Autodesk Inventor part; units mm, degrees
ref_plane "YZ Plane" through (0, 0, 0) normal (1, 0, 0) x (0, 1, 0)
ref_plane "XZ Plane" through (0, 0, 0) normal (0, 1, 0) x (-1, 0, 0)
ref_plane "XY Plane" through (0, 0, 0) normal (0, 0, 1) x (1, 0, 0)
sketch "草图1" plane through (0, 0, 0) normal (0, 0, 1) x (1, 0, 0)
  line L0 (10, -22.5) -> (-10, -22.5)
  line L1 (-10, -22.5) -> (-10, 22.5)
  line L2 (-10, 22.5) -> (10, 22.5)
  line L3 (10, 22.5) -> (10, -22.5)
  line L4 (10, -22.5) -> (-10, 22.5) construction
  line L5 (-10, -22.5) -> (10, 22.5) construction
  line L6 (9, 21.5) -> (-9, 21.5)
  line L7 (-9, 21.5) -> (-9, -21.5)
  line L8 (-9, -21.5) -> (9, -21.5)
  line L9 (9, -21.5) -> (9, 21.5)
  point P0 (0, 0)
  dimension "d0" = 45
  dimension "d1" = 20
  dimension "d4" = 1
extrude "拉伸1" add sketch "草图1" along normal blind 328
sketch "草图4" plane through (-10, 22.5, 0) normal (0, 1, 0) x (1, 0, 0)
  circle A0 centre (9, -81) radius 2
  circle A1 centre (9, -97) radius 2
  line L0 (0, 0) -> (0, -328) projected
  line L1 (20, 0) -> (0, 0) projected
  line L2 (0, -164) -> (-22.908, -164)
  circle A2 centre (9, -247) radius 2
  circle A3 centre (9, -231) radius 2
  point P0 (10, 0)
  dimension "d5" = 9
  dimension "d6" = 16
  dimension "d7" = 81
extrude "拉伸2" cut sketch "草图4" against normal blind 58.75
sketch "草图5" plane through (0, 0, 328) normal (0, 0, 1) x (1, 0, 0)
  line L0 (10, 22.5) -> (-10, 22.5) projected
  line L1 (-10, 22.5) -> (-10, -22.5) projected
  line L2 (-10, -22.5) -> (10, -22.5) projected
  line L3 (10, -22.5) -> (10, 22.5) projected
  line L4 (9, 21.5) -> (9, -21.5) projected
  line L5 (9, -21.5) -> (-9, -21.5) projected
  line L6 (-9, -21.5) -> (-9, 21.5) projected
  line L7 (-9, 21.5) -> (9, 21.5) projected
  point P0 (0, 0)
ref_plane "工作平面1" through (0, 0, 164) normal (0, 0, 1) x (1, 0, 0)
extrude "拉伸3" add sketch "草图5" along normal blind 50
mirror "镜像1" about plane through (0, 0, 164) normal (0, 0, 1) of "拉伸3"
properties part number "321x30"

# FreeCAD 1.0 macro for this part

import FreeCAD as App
import Part
import Sketcher
from FreeCAD import Vector
Q = App.Units.Quantity

doc = App.newDocument("Part")
body = doc.addObject("PartDesign::Body", "Body")

sketch1 = body.newObject("Sketcher::SketchObject", "Sketch")
sketch1.AttachmentSupport = (doc.getObject("XY_Plane"), [""])
sketch1.MapMode = "FlatFace"
sketch1.addGeometry([
    Part.LineSegment(Vector(-10, -22, 0), Vector(10, -22, 0)),
    Part.LineSegment(Vector(10, -22, 0), Vector(10, 22, 0)),
    Part.LineSegment(Vector(10, 22, 0), Vector(-10, 22, 0)),
    Part.LineSegment(Vector(-10, 22, 0), Vector(-10, -22, 0)),
    Part.LineSegment(Vector(-9, 22, 0), Vector(9, 22, 0)),
    Part.LineSegment(Vector(9, 22, 0), Vector(9, -22, 0)),
    Part.LineSegment(Vector(9, -22, 0), Vector(-9, -22, 0)),
    Part.LineSegment(Vector(-9, -22, 0), Vector(-9, 22, 0)),
], False)
sketch1.addConstraint([
    Sketcher.Constraint("Coincident", 0, 2, 1, 1),
    Sketcher.Constraint("Coincident", 1, 2, 2, 1),
    Sketcher.Constraint("Coincident", 2, 2, 3, 1),
    Sketcher.Constraint("Coincident", 3, 2, 0, 1),
    Sketcher.Constraint("Coincident", 4, 2, 5, 1),
    Sketcher.Constraint("Coincident", 5, 2, 6, 1),
    Sketcher.Constraint("Coincident", 6, 2, 7, 1),
    Sketcher.Constraint("Coincident", 7, 2, 4, 1),
    Sketcher.Constraint("Horizontal", 0),
    Sketcher.Constraint("Vertical", 1),
    Sketcher.Constraint("Horizontal", 2),
    Sketcher.Constraint("Vertical", 3),
    Sketcher.Constraint("Horizontal", 4),
    Sketcher.Constraint("Vertical", 5),
    Sketcher.Constraint("Horizontal", 6),
    Sketcher.Constraint("Vertical", 7),
    Sketcher.Constraint("Symmetric", 0, 2, 2, 2, -1, 1),
    Sketcher.Constraint("Symmetric", 4, 2, 6, 2, -1, 1),
    Sketcher.Constraint("DistanceX", 0, 1, 0, 2, Q("20 mm")),
    Sketcher.Constraint("DistanceY", 1, 1, 1, 2, Q("45 mm")),
    Sketcher.Constraint("DistanceX", 4, 2, 1, 2, Q("1 mm")),
    Sketcher.Constraint("DistanceY", 4, 2, 1, 2, Q("1 mm")),
])
pad1 = body.newObject("PartDesign::Pad", "Pad")
pad1.Profile = sketch1
pad1.Length = 328

sketch2 = body.newObject("Sketcher::SketchObject", "Sketch001")
sketch2.AttachmentSupport = (doc.getObject("XZ_Plane"), [""])
sketch2.MapMode = "FlatFace"
sketch2.AttachmentOffset = App.Placement(Vector(0, 0, -22.5), App.Rotation())
sketch2.addGeometry([
    Part.Circle(Vector(-1, 81, 0), Vector(0, 0, 1), 2),
    Part.Circle(Vector(-1, 97, 0), Vector(0, 0, 1), 2),
    Part.Circle(Vector(-1, 247, 0), Vector(0, 0, 1), 2),
    Part.Circle(Vector(-1, 231, 0), Vector(0, 0, 1), 2),
], False)
sketch2.addConstraint([
    Sketcher.Constraint("Equal", 0, 1),
    Sketcher.Constraint("Equal", 1, 2),
    Sketcher.Constraint("Equal", 2, 3),
    Sketcher.Constraint("Vertical", 0, 3, 1, 3),
    Sketcher.Constraint("Vertical", 1, 3, 2, 3),
    Sketcher.Constraint("Vertical", 2, 3, 3, 3),
    Sketcher.Constraint("Diameter", 0, Q("4 mm")),
    Sketcher.Constraint("DistanceY", -1, 1, 0, 3, Q("81 mm")),
    Sketcher.Constraint("DistanceY", 0, 3, 1, 3, Q("16 mm")),
    Sketcher.Constraint("DistanceY", 3, 3, 2, 3, Q("16 mm")),
    Sketcher.Constraint("DistanceX", 0, 3, -1, 1, Q("1 mm")),
    Sketcher.Constraint("DistanceY", -1, 1, 2, 3, Q("247 mm")),
])
pocket1 = body.newObject("PartDesign::Pocket", "Pocket")
pocket1.Profile = sketch2
pocket1.Length = 58.75
pocket1.Reversed = True

sketch3 = body.newObject("Sketcher::SketchObject", "Sketch002")
sketch3.AttachmentSupport = (doc.getObject("XY_Plane"), [""])
sketch3.MapMode = "FlatFace"
sketch3.AttachmentOffset = App.Placement(Vector(0, 0, 328), App.Rotation())
sketch3.addGeometry([
    Part.LineSegment(Vector(10, -22, 0), Vector(10, 22, 0)),
    Part.LineSegment(Vector(10, 22, 0), Vector(-10, 22, 0)),
    Part.LineSegment(Vector(-10, 22, 0), Vector(-10, -22, 0)),
    Part.LineSegment(Vector(-10, -22, 0), Vector(10, -22, 0)),
    Part.LineSegment(Vector(-9, 22, 0), Vector(9, 22, 0)),
    Part.LineSegment(Vector(9, 22, 0), Vector(9, -22, 0)),
    Part.LineSegment(Vector(9, -22, 0), Vector(-9, -22, 0)),
    Part.LineSegment(Vector(-9, -22, 0), Vector(-9, 22, 0)),
], False)
sketch3.addConstraint([
    Sketcher.Constraint("Coincident", 0, 2, 1, 1),
    Sketcher.Constraint("Coincident", 1, 2, 2, 1),
    Sketcher.Constraint("Coincident", 2, 2, 3, 1),
    Sketcher.Constraint("Coincident", 3, 2, 0, 1),
    Sketcher.Constraint("Coincident", 4, 2, 5, 1),
    Sketcher.Constraint("Coincident", 5, 2, 6, 1),
    Sketcher.Constraint("Coincident", 6, 2, 7, 1),
    Sketcher.Constraint("Coincident", 7, 2, 4, 1),
    Sketcher.Constraint("Vertical", 0),
    Sketcher.Constraint("Horizontal", 1),
    Sketcher.Constraint("Vertical", 2),
    Sketcher.Constraint("Horizontal", 3),
    Sketcher.Constraint("Horizontal", 4),
    Sketcher.Constraint("Vertical", 5),
    Sketcher.Constraint("Horizontal", 6),
    Sketcher.Constraint("Vertical", 7),
    Sketcher.Constraint("Symmetric", 0, 2, 2, 2, -1, 1),
    Sketcher.Constraint("Symmetric", 4, 2, 6, 2, -1, 1),
    Sketcher.Constraint("DistanceX", 1, 2, 1, 1, Q("20 mm")),
    Sketcher.Constraint("DistanceX", 4, 1, 4, 2, Q("18 mm")),
    Sketcher.Constraint("DistanceY", 0, 1, 0, 2, Q("45 mm")),
    Sketcher.Constraint("DistanceY", 5, 2, 5, 1, Q("43 mm")),
])
pad2 = body.newObject("PartDesign::Pad", "Pad001")
pad2.Profile = sketch3
pad2.Length = 50
doc.recompute()

datumplane = body.newObject("PartDesign::Plane", "DatumPlane")
datumplane.AttachmentSupport = (doc.getObject("XY_Plane"), [""])
datumplane.MapMode = "FlatFace"
datumplane.AttachmentOffset = App.Placement(Vector(0, 0, 164), App.Rotation())
mirrored = body.newObject("PartDesign::Mirrored", "Mirrored")
mirrored.Originals = [pad2]
mirrored.MirrorPlane = (datumplane, [""])
body.Tip = mirrored

doc.recompute()
